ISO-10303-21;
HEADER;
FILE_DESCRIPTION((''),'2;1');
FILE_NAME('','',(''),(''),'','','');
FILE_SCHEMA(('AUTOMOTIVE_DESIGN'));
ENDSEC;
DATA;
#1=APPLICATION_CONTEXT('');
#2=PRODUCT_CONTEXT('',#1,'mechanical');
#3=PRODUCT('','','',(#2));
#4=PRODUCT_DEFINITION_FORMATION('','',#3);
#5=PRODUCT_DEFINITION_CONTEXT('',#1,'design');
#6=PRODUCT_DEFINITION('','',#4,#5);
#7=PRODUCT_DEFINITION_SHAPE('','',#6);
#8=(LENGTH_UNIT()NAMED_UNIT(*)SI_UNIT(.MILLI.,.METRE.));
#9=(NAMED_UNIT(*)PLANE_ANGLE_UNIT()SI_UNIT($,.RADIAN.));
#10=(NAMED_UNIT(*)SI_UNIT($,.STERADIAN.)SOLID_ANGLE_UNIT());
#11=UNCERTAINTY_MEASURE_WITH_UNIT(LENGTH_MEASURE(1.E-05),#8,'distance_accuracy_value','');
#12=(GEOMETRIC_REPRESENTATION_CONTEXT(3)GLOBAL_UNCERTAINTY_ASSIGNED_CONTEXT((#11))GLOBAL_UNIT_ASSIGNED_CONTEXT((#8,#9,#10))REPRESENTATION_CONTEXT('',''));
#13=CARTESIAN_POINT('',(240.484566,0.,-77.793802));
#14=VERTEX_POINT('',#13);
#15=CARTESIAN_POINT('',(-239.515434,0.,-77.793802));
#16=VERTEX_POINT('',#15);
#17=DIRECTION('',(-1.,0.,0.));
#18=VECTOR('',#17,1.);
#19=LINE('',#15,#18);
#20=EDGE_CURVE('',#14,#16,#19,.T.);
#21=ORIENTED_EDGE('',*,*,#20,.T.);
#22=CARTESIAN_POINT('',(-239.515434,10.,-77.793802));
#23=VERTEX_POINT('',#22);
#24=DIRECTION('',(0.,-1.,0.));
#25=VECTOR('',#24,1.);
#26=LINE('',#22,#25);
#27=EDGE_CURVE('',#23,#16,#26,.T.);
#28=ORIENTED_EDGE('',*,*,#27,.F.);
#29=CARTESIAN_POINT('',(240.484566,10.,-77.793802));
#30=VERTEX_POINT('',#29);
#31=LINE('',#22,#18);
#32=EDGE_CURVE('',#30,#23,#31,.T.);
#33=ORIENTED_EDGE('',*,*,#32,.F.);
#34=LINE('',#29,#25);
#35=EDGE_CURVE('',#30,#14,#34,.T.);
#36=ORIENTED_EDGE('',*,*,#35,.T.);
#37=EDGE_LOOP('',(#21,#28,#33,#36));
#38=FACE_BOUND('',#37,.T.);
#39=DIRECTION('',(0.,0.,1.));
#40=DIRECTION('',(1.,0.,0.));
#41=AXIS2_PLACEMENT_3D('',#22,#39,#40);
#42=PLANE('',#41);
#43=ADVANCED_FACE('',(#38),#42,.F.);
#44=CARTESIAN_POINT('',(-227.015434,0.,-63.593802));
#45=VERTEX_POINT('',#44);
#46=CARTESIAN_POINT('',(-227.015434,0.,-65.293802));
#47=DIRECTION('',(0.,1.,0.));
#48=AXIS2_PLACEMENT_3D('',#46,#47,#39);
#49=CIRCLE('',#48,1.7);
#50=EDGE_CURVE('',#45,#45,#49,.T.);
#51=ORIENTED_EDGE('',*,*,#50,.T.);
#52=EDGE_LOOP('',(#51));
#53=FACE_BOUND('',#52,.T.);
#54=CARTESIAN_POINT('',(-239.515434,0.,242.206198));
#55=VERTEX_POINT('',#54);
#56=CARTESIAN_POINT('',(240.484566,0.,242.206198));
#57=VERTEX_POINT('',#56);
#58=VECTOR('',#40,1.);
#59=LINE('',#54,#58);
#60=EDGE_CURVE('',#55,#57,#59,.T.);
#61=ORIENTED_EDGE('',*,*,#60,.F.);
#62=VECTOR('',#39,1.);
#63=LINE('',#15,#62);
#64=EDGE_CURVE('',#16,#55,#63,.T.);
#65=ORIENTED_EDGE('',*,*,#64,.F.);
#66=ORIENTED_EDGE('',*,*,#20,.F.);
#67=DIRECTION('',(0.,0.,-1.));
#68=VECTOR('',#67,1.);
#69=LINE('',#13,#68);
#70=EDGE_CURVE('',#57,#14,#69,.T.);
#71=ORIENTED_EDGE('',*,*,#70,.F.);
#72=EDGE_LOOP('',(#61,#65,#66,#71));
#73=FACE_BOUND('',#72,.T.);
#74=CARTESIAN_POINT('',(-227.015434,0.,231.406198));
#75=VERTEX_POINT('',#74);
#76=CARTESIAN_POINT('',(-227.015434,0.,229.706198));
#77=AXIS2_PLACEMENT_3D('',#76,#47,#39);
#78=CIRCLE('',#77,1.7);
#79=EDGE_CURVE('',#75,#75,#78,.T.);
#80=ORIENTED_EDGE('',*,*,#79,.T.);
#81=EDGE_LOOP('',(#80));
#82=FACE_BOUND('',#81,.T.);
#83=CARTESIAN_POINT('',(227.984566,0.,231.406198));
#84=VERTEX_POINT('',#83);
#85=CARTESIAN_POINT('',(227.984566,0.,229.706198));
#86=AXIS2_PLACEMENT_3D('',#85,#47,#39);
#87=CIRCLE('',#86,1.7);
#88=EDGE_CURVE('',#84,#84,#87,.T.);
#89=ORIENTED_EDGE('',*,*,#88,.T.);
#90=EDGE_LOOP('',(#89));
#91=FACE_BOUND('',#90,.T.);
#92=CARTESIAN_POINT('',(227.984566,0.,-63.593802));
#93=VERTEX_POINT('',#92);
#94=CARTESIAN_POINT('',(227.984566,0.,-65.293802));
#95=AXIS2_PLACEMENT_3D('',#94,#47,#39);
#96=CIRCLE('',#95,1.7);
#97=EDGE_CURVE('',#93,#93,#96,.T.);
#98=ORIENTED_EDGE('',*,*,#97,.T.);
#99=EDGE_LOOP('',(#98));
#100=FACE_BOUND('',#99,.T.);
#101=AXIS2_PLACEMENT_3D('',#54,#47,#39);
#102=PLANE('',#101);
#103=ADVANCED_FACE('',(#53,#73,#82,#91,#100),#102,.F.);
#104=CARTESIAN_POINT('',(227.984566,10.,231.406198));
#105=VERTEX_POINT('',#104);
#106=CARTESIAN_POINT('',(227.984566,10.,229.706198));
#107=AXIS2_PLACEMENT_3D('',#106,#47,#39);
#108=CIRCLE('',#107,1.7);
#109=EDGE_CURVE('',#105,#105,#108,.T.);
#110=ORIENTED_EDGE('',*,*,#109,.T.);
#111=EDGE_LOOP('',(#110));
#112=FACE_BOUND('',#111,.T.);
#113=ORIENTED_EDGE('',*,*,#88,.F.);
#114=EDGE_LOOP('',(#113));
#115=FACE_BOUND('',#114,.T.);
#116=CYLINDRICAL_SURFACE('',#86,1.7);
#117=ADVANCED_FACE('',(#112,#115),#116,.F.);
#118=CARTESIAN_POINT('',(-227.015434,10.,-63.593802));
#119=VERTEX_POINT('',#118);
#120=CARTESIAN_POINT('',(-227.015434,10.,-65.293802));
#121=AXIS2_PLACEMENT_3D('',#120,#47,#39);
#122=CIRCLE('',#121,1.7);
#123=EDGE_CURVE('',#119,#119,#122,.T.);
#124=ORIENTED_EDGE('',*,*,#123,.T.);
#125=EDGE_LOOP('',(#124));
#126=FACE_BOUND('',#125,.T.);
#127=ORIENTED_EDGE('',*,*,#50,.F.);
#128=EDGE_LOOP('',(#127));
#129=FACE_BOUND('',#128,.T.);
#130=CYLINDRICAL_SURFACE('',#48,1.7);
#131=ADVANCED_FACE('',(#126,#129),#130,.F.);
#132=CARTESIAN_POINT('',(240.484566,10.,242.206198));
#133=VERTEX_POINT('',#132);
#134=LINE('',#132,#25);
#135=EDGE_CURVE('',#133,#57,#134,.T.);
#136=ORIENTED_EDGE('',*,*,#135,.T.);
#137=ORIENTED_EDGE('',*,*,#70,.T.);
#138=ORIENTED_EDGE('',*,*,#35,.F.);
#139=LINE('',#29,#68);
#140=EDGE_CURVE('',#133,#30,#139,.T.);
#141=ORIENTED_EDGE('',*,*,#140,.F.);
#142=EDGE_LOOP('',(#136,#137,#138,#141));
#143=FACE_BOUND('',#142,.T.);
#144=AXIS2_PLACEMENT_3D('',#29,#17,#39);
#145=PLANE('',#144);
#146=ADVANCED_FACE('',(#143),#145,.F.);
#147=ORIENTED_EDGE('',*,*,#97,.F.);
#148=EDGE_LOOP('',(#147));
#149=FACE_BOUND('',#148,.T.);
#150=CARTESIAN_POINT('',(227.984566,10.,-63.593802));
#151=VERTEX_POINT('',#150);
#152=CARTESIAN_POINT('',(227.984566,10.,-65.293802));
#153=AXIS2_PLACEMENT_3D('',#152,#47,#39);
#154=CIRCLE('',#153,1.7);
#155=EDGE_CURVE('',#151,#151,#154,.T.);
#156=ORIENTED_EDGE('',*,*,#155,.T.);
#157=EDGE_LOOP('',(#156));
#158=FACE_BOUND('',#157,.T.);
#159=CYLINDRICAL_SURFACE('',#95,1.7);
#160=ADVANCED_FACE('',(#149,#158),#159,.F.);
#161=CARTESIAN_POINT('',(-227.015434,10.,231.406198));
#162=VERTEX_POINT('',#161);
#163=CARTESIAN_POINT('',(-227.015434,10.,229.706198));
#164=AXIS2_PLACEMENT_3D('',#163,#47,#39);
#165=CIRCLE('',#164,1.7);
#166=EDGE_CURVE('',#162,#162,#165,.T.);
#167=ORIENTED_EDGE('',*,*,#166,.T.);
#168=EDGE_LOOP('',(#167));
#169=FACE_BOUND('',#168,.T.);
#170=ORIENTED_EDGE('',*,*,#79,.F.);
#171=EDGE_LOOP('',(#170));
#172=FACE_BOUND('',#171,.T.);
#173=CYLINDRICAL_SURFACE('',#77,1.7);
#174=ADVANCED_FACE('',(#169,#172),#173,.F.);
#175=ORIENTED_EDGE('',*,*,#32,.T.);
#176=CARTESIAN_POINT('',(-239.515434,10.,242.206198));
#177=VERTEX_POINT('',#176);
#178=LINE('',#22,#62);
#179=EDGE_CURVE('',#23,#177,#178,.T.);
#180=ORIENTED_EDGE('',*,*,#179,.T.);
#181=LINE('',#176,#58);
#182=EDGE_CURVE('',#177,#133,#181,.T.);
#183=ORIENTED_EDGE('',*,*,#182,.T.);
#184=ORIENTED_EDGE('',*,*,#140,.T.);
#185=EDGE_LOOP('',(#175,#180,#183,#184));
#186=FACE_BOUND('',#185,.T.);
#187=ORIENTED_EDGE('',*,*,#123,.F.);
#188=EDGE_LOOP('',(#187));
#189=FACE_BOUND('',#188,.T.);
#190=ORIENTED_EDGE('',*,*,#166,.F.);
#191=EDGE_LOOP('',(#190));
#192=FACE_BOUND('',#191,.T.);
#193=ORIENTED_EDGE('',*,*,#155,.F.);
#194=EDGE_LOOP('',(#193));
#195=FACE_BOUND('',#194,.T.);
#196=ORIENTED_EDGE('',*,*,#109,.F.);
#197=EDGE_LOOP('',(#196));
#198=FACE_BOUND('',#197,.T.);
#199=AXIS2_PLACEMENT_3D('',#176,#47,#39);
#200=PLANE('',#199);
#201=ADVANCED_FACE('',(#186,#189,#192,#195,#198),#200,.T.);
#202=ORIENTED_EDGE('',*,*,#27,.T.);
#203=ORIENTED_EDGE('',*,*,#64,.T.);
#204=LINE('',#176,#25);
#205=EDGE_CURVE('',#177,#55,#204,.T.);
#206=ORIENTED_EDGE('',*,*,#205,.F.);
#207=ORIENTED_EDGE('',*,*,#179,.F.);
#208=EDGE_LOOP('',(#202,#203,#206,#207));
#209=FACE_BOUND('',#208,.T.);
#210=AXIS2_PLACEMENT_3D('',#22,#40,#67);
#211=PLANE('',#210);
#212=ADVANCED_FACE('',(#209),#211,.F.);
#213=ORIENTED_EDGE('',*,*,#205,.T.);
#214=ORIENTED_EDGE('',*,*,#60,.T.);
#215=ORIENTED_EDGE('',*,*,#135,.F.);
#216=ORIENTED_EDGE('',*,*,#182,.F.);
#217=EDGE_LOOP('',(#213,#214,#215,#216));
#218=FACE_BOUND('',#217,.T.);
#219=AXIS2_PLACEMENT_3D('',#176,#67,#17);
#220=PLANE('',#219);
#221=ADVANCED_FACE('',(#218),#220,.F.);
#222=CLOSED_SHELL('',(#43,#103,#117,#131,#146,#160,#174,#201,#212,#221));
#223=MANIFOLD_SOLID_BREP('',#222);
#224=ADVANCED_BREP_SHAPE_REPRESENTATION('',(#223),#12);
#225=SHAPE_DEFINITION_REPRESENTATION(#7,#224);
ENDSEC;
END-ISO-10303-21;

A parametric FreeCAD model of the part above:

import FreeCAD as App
import Part
import Sketcher

V = App.Vector

doc = App.newDocument("Part")
params = doc.addObject("Spreadsheet::Sheet", "Params")
for row, (alias, value) in enumerate([
    ("sketch1_width", "480 mm"),
    ("sketch1_height", "320 mm"),
    ("pad1_length", "10 mm"),
    ("sketch2_diameter", "3.4 mm"),
], start=1):
    params.set(f"A{row}", alias)
    params.set(f"B{row}", "=" + value)
    params.setAlias(f"B{row}", alias)

body = doc.addObject("PartDesign::Body", "Body")

sketch1 = body.newObject("Sketcher::SketchObject", "Sketch")
sketch1.AttachmentSupport = (doc.getObject("XZ_Plane"), [""])
sketch1.MapMode = "FlatFace"
sketch1.addGeometry([
    Part.LineSegment(V(-240, -78, 0), V(-240, 242, 0)),
    Part.LineSegment(V(-240, 242, 0), V(240, 242, 0)),
    Part.LineSegment(V(240, 242, 0), V(240, -78, 0)),
    Part.LineSegment(V(240, -78, 0), V(-240, -78, 0)),
], False)
sketch1.addConstraint([
    Sketcher.Constraint("Coincident", 0, 2, 1, 1),
    Sketcher.Constraint("Coincident", 1, 2, 2, 1),
    Sketcher.Constraint("Coincident", 2, 2, 3, 1),
    Sketcher.Constraint("Coincident", 3, 2, 0, 1),
    Sketcher.Constraint("Vertical", 0),
    Sketcher.Constraint("Horizontal", 1),
    Sketcher.Constraint("Vertical", 2),
    Sketcher.Constraint("Horizontal", 3),
    Sketcher.Constraint("DistanceX", 1, 1, 1, 2, 480.0),
    Sketcher.Constraint("DistanceY", 0, 1, 0, 2, 320.0),
    Sketcher.Constraint("DistanceX", 0, 2, -1, 1, 239.515434),
    Sketcher.Constraint("DistanceY", -1, 1, 0, 2, 242.206198),
])
sketch1.setExpression("Constraints[8]", "Params.sketch1_width")
sketch1.setExpression("Constraints[9]", "Params.sketch1_height")
pad1 = body.newObject("PartDesign::Pad", "Pad")
pad1.Profile = sketch1
pad1.setExpression("Length", "Params.pad1_length")
pad1.Reversed = True

sketch2 = body.newObject("Sketcher::SketchObject", "Sketch001")
sketch2.AttachmentSupport = (doc.getObject("XZ_Plane"), [""])
sketch2.MapMode = "FlatFace"
sketch2.AttachmentOffset = App.Placement(V(0, 0, -10), App.Rotation())
sketch2.addGeometry([
    Part.Circle(V(-227, -65.3, 0), V(0, 0, 1), 1.7),
    Part.Circle(V(228, 229.7, 0), V(0, 0, 1), 1.7),
    Part.Circle(V(228, -65.3, 0), V(0, 0, 1), 1.7),
    Part.Circle(V(-227, 229.7, 0), V(0, 0, 1), 1.7),
], False)
sketch2.addConstraint([
    Sketcher.Constraint("Equal", 0, 1),
    Sketcher.Constraint("Equal", 1, 2),
    Sketcher.Constraint("Equal", 2, 3),
    Sketcher.Constraint("Horizontal", 0, 3, 2, 3),
    Sketcher.Constraint("Horizontal", 1, 3, 3, 3),
    Sketcher.Constraint("Vertical", 1, 3, 2, 3),
    Sketcher.Constraint("Vertical", 0, 3, 3, 3),
    Sketcher.Constraint("Diameter", 0, 3.4),
    Sketcher.Constraint("DistanceX", 0, 3, 1, 3, 455.0),
    Sketcher.Constraint("DistanceY", 0, 3, 1, 3, 295.0),
    Sketcher.Constraint("DistanceX", 0, 3, -1, 1, 227.015434),
    Sketcher.Constraint("DistanceY", 0, 3, -1, 1, 65.293802),
])
sketch2.setExpression("Constraints[7]", "Params.sketch2_diameter")
pocket1 = body.newObject("PartDesign::Pocket", "Pocket")
pocket1.Profile = sketch2
pocket1.Type = "ThroughAll"
pocket1.Reversed = True

doc.recompute()
